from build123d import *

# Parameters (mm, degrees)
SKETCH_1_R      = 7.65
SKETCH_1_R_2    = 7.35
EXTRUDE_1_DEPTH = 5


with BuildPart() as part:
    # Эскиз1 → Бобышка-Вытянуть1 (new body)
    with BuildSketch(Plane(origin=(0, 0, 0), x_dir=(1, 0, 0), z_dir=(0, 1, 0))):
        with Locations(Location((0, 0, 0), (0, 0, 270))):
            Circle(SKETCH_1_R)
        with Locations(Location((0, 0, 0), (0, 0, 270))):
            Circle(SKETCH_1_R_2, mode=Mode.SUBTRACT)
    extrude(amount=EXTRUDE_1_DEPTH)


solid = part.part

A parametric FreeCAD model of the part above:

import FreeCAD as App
import Part
import Sketcher
from FreeCAD import Vector

doc = App.newDocument("Part")
params = doc.addObject("Spreadsheet::Sheet", "Params")
for row, (alias, value) in enumerate([
    ("sketch1_diameter", "15.3 mm"),
    ("sketch1_diameter2", "14.7 mm"),
    ("pad1_length", "5 mm"),
], start=1):
    params.set(f"A{row}", alias)
    params.set(f"B{row}", "=" + value)
    params.setAlias(f"B{row}", alias)

body = doc.addObject("PartDesign::Body", "Body")

sketch1 = body.newObject("Sketcher::SketchObject", "Sketch")
sketch1.AttachmentSupport = (doc.getObject("XZ_Plane"), [""])
sketch1.MapMode = "FlatFace"
sketch1.addGeometry(Part.Circle(Vector(0, 0, 0), Vector(0, 0, 1), 8), False)
sketch1.addGeometry(Part.Circle(Vector(0, 0, 0), Vector(0, 0, 1), 7), False)
sketch1.addConstraint(Sketcher.Constraint("Coincident", 0, 3, -1, 1))
sketch1.addConstraint(Sketcher.Constraint("Coincident", 1, 3, -1, 1))
sketch1.addConstraint(Sketcher.Constraint("Diameter", 0, 15.3))
sketch1.addConstraint(Sketcher.Constraint("Diameter", 1, 14.7))
sketch1.setExpression("Constraints[2]", "Params.sketch1_diameter")
sketch1.setExpression("Constraints[3]", "Params.sketch1_diameter2")
pad1 = body.newObject("PartDesign::Pad", "Pad")
pad1.Profile = sketch1
pad1.setExpression("Length", "Params.pad1_length")
pad1.Reversed = True

doc.recompute()
